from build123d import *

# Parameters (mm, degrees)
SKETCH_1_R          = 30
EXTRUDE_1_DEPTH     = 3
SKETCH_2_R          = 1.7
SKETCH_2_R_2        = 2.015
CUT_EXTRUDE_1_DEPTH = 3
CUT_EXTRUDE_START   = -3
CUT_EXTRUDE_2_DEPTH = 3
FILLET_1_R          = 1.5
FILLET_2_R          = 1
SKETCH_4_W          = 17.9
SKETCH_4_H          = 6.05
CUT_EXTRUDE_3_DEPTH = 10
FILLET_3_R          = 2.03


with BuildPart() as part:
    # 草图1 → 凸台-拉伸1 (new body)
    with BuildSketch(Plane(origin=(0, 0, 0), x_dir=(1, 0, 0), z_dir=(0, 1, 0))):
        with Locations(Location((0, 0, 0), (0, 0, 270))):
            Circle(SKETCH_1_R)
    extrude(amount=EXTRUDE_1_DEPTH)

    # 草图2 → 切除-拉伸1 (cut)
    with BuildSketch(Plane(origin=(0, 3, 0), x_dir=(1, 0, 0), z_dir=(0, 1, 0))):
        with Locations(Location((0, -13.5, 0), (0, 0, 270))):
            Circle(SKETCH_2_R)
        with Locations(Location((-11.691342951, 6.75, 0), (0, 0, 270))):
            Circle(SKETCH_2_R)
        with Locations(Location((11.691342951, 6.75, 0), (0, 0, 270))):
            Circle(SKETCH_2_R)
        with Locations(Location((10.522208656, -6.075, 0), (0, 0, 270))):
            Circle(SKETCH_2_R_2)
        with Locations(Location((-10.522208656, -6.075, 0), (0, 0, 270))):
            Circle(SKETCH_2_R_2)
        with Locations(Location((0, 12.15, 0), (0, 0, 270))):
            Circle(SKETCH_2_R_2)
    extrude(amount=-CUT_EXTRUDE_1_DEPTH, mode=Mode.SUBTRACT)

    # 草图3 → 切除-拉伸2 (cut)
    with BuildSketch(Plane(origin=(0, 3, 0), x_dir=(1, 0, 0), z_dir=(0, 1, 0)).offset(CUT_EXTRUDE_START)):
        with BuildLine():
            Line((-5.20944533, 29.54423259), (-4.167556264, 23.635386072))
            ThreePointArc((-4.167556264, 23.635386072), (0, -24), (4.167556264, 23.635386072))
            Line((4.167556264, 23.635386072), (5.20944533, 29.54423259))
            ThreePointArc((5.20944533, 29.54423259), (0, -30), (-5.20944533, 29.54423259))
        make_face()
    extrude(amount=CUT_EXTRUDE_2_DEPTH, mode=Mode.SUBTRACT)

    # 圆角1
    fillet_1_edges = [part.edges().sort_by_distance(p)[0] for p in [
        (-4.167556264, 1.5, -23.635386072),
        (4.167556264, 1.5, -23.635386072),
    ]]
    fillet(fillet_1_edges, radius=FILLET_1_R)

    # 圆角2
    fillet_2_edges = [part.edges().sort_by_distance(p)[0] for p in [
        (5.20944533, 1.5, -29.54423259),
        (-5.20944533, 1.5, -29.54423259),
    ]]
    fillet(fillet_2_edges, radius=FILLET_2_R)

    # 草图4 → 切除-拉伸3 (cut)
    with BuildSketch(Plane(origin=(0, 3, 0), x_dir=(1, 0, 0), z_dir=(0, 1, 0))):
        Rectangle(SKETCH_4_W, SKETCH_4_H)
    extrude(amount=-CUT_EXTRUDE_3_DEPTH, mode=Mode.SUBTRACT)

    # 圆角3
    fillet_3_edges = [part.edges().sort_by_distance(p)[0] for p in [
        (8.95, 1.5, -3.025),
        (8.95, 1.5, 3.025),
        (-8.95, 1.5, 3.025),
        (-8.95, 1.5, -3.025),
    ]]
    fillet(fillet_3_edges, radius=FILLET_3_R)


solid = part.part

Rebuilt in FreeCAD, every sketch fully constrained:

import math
import FreeCAD as App
import Part
import Sketcher
Q = App.Units.Quantity


def edges_at(feature, points):
    """Names of the edges that pass closest to the given points."""
    edges = feature.Shape.Edges
    near = lambda p: min(range(len(edges)), key=lambda i: edges[i].distToShape(Part.Vertex(*p))[0])
    return sorted({f"Edge{near(p) + 1}" for p in points})

doc = App.newDocument("Part")
params = doc.addObject("Spreadsheet::Sheet", "Params")
for row, (alias, value) in enumerate([
    ("sketch1_diameter", "60 mm"),
    ("pad1_length", "3 mm"),
    ("sketch2_diameter", "3.4 mm"),
    ("sketch2_diameter2", "4.03 mm"),
    ("pocket1_length", "3 mm"),
    ("sketch3_radius", "30 mm"),
    ("sketch3_radius2", "24 mm"),
    ("pocket2_length", "3 mm"),
    ("fillet_radius", "1.5 mm"),
    ("fillet2_radius", "1 mm"),
    ("sketch4_width", "17.9 mm"),
    ("sketch4_height", "6.05 mm"),
    ("pocket3_length", "10 mm"),
    ("fillet3_radius", "2.03 mm"),
], start=1):
    params.set(f"A{row}", alias)
    params.set(f"B{row}", "=" + value)
    params.setAlias(f"B{row}", alias)

body = doc.addObject("PartDesign::Body", "Body")

sketch1 = body.newObject("Sketcher::SketchObject", "Sketch")
sketch1.AttachmentSupport = (doc.getObject("XZ_Plane"), [""])
sketch1.MapMode = "FlatFace"
sketch1.addGeometry(Part.Circle(App.Vector(0, 0, 0), App.Vector(0, 0, 1), 30), False)
sketch1.addConstraint(Sketcher.Constraint("Coincident", 0, 3, -1, 1))
sketch1.addConstraint(Sketcher.Constraint("Diameter", 0, Q("60 mm")))
sketch1.setExpression("Constraints[1]", "Params.sketch1_diameter")
pad1 = body.newObject("PartDesign::Pad", "Pad")
pad1.Profile = sketch1
pad1.setExpression("Length", "Params.pad1_length")
pad1.Reversed = True

sketch2 = body.newObject("Sketcher::SketchObject", "Sketch001")
sketch2.AttachmentSupport = (doc.getObject("XZ_Plane"), [""])
sketch2.MapMode = "FlatFace"
sketch2.AttachmentOffset = App.Placement(App.Vector(0, 0, -3), App.Rotation())
sketch2.addGeometry(Part.Circle(App.Vector(0, 13.5, 0), App.Vector(0, 0, 1), 1.7), False)
sketch2.addGeometry(Part.Circle(App.Vector(-11.691343, -6.75, 0), App.Vector(0, 0, 1), 1.7), False)
sketch2.addGeometry(Part.Circle(App.Vector(11.691343, -6.75, 0), App.Vector(0, 0, 1), 1.7), False)
sketch2.addGeometry(Part.Circle(App.Vector(10.522209, 6.075, 0), App.Vector(0, 0, 1), 2.015), False)
sketch2.addGeometry(Part.Circle(App.Vector(-10.522209, 6.075, 0), App.Vector(0, 0, 1), 2.015), False)
sketch2.addGeometry(Part.Circle(App.Vector(0, -12.15, 0), App.Vector(0, 0, 1), 2.015), False)
sketch2.addConstraint(Sketcher.Constraint("Equal", 0, 1))
sketch2.addConstraint(Sketcher.Constraint("Equal", 1, 2))
sketch2.addConstraint(Sketcher.Constraint("Equal", 3, 4))
sketch2.addConstraint(Sketcher.Constraint("Equal", 4, 5))
sketch2.addConstraint(Sketcher.Constraint("Symmetric", 1, 3, 2, 3, -2))
sketch2.addConstraint(Sketcher.Constraint("Symmetric", 3, 3, 4, 3, -2))
sketch2.addConstraint(Sketcher.Constraint("PointOnObject", 0, 3, -2))
sketch2.addConstraint(Sketcher.Constraint("PointOnObject", 5, 3, -2))
sketch2.addConstraint(Sketcher.Constraint("Diameter", 0, Q("3.4 mm")))
sketch2.addConstraint(Sketcher.Constraint("Diameter", 3, Q("4.03 mm")))
sketch2.addConstraint(Sketcher.Constraint("DistanceY", -1, 1, 0, 3, Q("13.5 mm")))
sketch2.addConstraint(Sketcher.Constraint("DistanceY", 5, 3, 1, 3, Q("5.4 mm")))
sketch2.addConstraint(Sketcher.Constraint("DistanceY", 1, 3, -1, 1, Q("6.75 mm")))
sketch2.addConstraint(Sketcher.Constraint("DistanceY", -1, 1, 3, 3, Q("6.075 mm")))
sketch2.addConstraint(Sketcher.Constraint("DistanceX", -1, 1, 3, 3, Q("10.522209 mm")))
sketch2.addConstraint(Sketcher.Constraint("DistanceX", 1, 3, 3, 3, Q("22.213552 mm")))
sketch2.setExpression("Constraints[8]", "Params.sketch2_diameter")
sketch2.setExpression("Constraints[9]", "Params.sketch2_diameter2")
pocket1 = body.newObject("PartDesign::Pocket", "Pocket")
pocket1.Profile = sketch2
pocket1.setExpression("Length", "Params.pocket1_length")
pocket1.Reversed = True

sketch3 = body.newObject("Sketcher::SketchObject", "Sketch002")
sketch3.AttachmentSupport = (doc.getObject("XZ_Plane"), [""])
sketch3.MapMode = "FlatFace"
sketch3.addGeometry(Part.LineSegment(App.Vector(-4.167556, -23.635386, 0), App.Vector(-5.209445, -29.544233, 0)), False)
sketch3.addGeometry(Part.ArcOfCircle(Part.Circle(App.Vector(0, 0, 0), App.Vector(0, 0, 1), 30), math.radians(-80), math.radians(260)), False)
sketch3.addGeometry(Part.LineSegment(App.Vector(5.209445, -29.544233, 0), App.Vector(4.167556, -23.635386, 0)), False)
sketch3.addGeometry(Part.ArcOfCircle(Part.Circle(App.Vector(0, 0, 0), App.Vector(0, 0, 1), 24), math.radians(-80), math.radians(260)), False)
sketch3.addConstraint(Sketcher.Constraint("Coincident", 0, 2, 1, 2))
sketch3.addConstraint(Sketcher.Constraint("Coincident", 1, 1, 2, 1))
sketch3.addConstraint(Sketcher.Constraint("Coincident", 2, 2, 3, 1))
sketch3.addConstraint(Sketcher.Constraint("Coincident", 3, 2, 0, 1))
sketch3.addConstraint(Sketcher.Constraint("Coincident", 1, 3, -1, 1))
sketch3.addConstraint(Sketcher.Constraint("Coincident", 3, 3, -1, 1))
sketch3.addConstraint(Sketcher.Constraint("Horizontal", 0, 2, 1, 1))
sketch3.addConstraint(Sketcher.Constraint("Horizontal", 2, 2, 3, 2))
sketch3.addConstraint(Sketcher.Constraint("Radius", 1, Q("30 mm")))
sketch3.addConstraint(Sketcher.Constraint("Radius", 3, Q("24 mm")))
sketch3.addConstraint(Sketcher.Constraint("Angle", 0, Q("-100 deg")))
sketch3.addConstraint(Sketcher.Constraint("DistanceX", 0, 2, 2, 2, Q("9.377002 mm")))
sketch3.setExpression("Constraints[8]", "Params.sketch3_radius")
sketch3.setExpression("Constraints[9]", "Params.sketch3_radius2")
pocket2 = body.newObject("PartDesign::Pocket", "Pocket001")
pocket2.Profile = sketch3
pocket2.setExpression("Length", "Params.pocket2_length")
doc.recompute()

fillet = body.newObject("PartDesign::Fillet", "Fillet")
fillet.Base = (pocket2, edges_at(pocket2, [(-4.168, 1.5, -23.635), (4.168, 1.5, -23.635)]))
fillet.setExpression("Radius", "Params.fillet_radius")
doc.recompute()

fillet2 = body.newObject("PartDesign::Fillet", "Fillet001")
fillet2.Base = (fillet, edges_at(fillet, [(5.209, 1.5, -29.544), (-5.209, 1.5, -29.544)]))
fillet2.setExpression("Radius", "Params.fillet2_radius")

sketch4 = body.newObject("Sketcher::SketchObject", "Sketch003")
sketch4.AttachmentSupport = (doc.getObject("XZ_Plane"), [""])
sketch4.MapMode = "FlatFace"
sketch4.AttachmentOffset = App.Placement(App.Vector(0, 0, -3), App.Rotation())
sketch4.addGeometry(Part.LineSegment(App.Vector(-8.95, -3.025, 0), App.Vector(-8.95, 3.025, 0)), False)
sketch4.addGeometry(Part.LineSegment(App.Vector(-8.95, 3.025, 0), App.Vector(8.95, 3.025, 0)), False)
sketch4.addGeometry(Part.LineSegment(App.Vector(8.95, 3.025, 0), App.Vector(8.95, -3.025, 0)), False)
sketch4.addGeometry(Part.LineSegment(App.Vector(8.95, -3.025, 0), App.Vector(-8.95, -3.025, 0)), False)
sketch4.addConstraint(Sketcher.Constraint("Coincident", 0, 2, 1, 1))
sketch4.addConstraint(Sketcher.Constraint("Coincident", 1, 2, 2, 1))
sketch4.addConstraint(Sketcher.Constraint("Coincident", 2, 2, 3, 1))
sketch4.addConstraint(Sketcher.Constraint("Coincident", 3, 2, 0, 1))
sketch4.addConstraint(Sketcher.Constraint("Vertical", 0))
sketch4.addConstraint(Sketcher.Constraint("Horizontal", 1))
sketch4.addConstraint(Sketcher.Constraint("Vertical", 2))
sketch4.addConstraint(Sketcher.Constraint("Horizontal", 3))
sketch4.addConstraint(Sketcher.Constraint("Symmetric", 0, 2, 2, 2, -1, 1))
sketch4.addConstraint(Sketcher.Constraint("DistanceX", 1, 1, 1, 2, Q("17.9 mm")))
sketch4.addConstraint(Sketcher.Constraint("DistanceY", 0, 1, 0, 2, Q("6.05 mm")))
sketch4.setExpression("Constraints[9]", "Params.sketch4_width")
sketch4.setExpression("Constraints[10]", "Params.sketch4_height")
pocket3 = body.newObject("PartDesign::Pocket", "Pocket002")
pocket3.Profile = sketch4
pocket3.setExpression("Length", "Params.pocket3_length")
pocket3.Reversed = True
doc.recompute()

fillet3 = body.newObject("PartDesign::Fillet", "Fillet002")
fillet3.Base = (pocket3, edges_at(pocket3, [
    (8.95, 1.5, -3.025),
    (8.95, 1.5, 3.025),
    (-8.95, 1.5, 3.025),
    (-8.95, 1.5, -3.025),
]))
fillet3.setExpression("Radius", "Params.fillet3_radius")

doc.recompute()
